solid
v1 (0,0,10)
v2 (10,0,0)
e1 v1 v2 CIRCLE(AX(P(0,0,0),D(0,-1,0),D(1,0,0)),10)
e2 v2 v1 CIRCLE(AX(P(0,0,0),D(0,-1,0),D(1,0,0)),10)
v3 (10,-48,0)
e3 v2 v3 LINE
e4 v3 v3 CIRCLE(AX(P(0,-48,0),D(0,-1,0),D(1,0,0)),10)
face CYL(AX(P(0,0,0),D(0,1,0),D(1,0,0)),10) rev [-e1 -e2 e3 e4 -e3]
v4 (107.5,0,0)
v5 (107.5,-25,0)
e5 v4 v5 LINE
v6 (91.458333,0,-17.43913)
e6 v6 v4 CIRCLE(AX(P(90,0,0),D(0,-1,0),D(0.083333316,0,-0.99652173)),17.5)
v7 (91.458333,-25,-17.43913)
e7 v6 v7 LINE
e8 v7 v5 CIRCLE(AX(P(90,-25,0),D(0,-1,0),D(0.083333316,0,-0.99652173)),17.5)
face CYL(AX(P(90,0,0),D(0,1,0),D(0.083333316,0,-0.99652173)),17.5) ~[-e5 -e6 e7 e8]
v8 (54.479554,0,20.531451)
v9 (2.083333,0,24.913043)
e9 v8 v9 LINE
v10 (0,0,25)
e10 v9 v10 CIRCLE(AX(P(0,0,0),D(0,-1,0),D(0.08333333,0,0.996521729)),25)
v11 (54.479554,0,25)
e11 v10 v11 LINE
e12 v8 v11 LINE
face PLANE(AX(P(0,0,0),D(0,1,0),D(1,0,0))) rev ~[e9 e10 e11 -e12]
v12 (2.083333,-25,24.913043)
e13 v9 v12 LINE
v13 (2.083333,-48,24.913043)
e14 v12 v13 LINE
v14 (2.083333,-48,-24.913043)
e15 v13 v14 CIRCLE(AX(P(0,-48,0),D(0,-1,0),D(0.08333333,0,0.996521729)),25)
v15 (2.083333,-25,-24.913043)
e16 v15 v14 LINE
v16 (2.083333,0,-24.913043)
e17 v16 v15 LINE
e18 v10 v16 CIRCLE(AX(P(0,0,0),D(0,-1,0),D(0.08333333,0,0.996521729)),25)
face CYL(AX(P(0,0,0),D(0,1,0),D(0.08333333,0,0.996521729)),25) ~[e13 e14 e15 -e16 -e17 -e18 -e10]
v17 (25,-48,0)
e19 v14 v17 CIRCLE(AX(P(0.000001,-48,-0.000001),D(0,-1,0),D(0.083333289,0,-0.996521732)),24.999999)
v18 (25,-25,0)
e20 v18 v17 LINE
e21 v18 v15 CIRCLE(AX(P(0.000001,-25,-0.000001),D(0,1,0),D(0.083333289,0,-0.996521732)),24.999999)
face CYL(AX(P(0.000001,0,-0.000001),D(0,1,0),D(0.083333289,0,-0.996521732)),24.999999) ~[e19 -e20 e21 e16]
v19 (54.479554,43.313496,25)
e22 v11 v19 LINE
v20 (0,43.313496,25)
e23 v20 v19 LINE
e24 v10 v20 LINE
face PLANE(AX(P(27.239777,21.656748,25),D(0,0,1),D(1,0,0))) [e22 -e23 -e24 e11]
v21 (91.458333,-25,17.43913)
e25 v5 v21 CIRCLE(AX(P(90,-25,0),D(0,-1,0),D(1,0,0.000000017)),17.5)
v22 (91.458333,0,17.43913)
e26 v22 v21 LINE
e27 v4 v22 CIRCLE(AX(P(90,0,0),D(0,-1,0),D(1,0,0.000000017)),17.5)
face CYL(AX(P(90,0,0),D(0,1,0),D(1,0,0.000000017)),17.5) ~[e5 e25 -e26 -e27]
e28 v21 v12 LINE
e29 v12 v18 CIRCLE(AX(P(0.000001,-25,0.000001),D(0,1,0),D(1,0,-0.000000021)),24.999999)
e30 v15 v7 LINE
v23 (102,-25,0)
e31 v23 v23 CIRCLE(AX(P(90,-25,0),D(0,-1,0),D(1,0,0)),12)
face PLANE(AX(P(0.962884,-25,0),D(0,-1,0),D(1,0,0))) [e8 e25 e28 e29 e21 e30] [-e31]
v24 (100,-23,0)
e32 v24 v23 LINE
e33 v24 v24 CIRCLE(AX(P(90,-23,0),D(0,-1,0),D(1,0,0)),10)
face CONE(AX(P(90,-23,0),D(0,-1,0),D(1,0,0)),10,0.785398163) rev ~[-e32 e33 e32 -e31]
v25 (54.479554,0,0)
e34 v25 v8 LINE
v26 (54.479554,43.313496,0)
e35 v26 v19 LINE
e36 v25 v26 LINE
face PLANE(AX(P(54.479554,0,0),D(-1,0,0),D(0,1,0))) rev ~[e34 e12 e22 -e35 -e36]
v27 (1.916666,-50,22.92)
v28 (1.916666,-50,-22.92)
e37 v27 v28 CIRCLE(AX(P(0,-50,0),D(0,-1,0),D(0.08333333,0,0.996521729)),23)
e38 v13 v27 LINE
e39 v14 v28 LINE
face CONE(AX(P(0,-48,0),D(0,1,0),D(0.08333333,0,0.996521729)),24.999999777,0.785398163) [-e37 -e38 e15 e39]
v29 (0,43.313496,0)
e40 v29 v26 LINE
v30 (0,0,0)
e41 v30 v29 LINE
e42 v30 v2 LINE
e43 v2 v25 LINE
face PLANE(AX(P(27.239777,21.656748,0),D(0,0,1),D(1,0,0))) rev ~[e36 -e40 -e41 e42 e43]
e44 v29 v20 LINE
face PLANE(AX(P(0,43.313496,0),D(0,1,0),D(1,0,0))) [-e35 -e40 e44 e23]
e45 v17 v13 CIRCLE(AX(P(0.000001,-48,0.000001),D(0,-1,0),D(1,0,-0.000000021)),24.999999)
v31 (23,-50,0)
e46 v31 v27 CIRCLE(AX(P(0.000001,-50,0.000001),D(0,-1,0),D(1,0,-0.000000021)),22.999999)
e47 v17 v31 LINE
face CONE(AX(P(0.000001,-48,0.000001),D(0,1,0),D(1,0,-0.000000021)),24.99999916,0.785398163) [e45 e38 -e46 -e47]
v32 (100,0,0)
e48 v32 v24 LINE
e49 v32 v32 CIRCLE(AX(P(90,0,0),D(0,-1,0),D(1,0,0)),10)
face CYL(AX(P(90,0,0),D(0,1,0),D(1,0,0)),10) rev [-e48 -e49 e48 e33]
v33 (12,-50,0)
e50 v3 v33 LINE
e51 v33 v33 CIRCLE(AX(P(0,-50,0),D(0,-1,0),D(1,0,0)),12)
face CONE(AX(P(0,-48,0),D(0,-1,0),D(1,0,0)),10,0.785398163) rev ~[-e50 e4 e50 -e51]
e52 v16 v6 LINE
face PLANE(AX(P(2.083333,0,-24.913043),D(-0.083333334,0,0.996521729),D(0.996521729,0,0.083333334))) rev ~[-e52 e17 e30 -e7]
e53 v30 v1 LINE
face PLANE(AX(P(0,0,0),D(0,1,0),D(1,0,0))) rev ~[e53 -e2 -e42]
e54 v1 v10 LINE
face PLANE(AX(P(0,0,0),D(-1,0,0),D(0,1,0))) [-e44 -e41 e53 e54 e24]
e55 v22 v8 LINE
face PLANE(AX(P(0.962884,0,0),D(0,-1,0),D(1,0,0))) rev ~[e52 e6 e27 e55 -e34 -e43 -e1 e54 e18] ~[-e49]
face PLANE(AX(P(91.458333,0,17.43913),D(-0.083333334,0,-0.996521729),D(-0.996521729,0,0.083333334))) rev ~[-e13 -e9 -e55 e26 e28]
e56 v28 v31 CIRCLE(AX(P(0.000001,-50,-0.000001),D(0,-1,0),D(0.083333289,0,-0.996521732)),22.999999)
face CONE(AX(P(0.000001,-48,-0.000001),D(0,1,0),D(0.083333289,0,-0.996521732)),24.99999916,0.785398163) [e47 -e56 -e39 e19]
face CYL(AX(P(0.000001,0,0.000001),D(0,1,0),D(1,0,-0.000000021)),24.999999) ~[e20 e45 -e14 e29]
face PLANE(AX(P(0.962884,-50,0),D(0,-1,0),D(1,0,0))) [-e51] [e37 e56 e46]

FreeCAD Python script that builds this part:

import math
import FreeCAD as App
import Part
import Sketcher

V = App.Vector
Q = App.Units.Quantity


def edges_at(feature, points):
    """Names of the edges that pass closest to the given points."""
    edges = feature.Shape.Edges
    near = lambda p: min(range(len(edges)), key=lambda i: edges[i].distToShape(Part.Vertex(*p))[0])
    return sorted({f"Edge{near(p) + 1}" for p in points})

doc = App.newDocument("Part")
body = doc.addObject("PartDesign::Body", "Body")

sketch1 = body.newObject("Sketcher::SketchObject", "Sketch")
sketch1.AttachmentSupport = (doc.getObject("XZ_Plane"), [""])
sketch1.MapMode = "FlatFace"
sketch1.addGeometry([
    Part.ArcOfCircle(Part.Circle(V(0, 0, 0), V(0, 0, 1), 25), math.radians(85), math.radians(275)),
    Part.LineSegment(V(2, -25, 0), V(91, -17, 0)),
    Part.ArcOfCircle(Part.Circle(V(90, 0, 0), V(0, 0, 1), 18), math.radians(-85), math.radians(0)),
    Part.ArcOfCircle(Part.Circle(V(90, 0, 0), V(0, 0, 1), 18), math.radians(0), math.radians(85)),
    Part.LineSegment(V(91, 17, 0), V(2, 25, 0)),
    Part.Circle(V(0, 0, 0), V(0, 0, 1), 10),
    Part.Circle(V(90, 0, 0), V(0, 0, 1), 10),
], False)
sketch1.addConstraint([
    Sketcher.Constraint("Tangent", 0, 2, 1, 1),
    Sketcher.Constraint("Tangent", 1, 2, 2, 1),
    Sketcher.Constraint("Tangent", 2, 2, 3, 1),
    Sketcher.Constraint("Tangent", 3, 2, 4, 1),
    Sketcher.Constraint("Tangent", 4, 2, 0, 1),
    Sketcher.Constraint("Coincident", 0, 3, -1, 1),
    Sketcher.Constraint("Coincident", 5, 3, -1, 1),
    Sketcher.Constraint("Coincident", 6, 3, 2, 3),
    Sketcher.Constraint("Equal", 2, 3),
    Sketcher.Constraint("Equal", 5, 6),
    Sketcher.Constraint("PointOnObject", 2, 3, -1),
    Sketcher.Constraint("PointOnObject", 2, 2, -1),
    Sketcher.Constraint("Diameter", 5, Q("20 mm")),
    Sketcher.Constraint("Radius", 0, Q("25 mm")),
    Sketcher.Constraint("Radius", 2, Q("17.5 mm")),
    Sketcher.Constraint("DistanceX", -1, 1, 2, 3, Q("90 mm")),
])
pad1 = body.newObject("PartDesign::Pad", "Pad")
pad1.Profile = sketch1
pad1.Length = 25

sketch2 = body.newObject("Sketcher::SketchObject", "Sketch001")
sketch2.AttachmentSupport = (doc.getObject("XZ_Plane"), [""])
sketch2.MapMode = "FlatFace"
sketch2.addGeometry([
    Part.ArcOfCircle(Part.Circle(V(0, 0, 0), V(0, 0, 1), 25), math.radians(-85), math.radians(0)),
    Part.ArcOfCircle(Part.Circle(V(0, 0, 0), V(0, 0, 1), 25), math.radians(0), math.radians(85)),
    Part.ArcOfCircle(Part.Circle(V(0, 0, 0), V(0, 0, 1), 25), math.radians(85), math.radians(275)),
    Part.Circle(V(0, 0, 0), V(0, 0, 1), 10),
], False)
sketch2.addConstraint([
    Sketcher.Constraint("Tangent", 0, 2, 1, 1),
    Sketcher.Constraint("Tangent", 1, 2, 2, 1),
    Sketcher.Constraint("Tangent", 2, 2, 0, 1),
    Sketcher.Constraint("Coincident", 0, 3, -1, 1),
    Sketcher.Constraint("Coincident", 3, 3, -1, 1),
    Sketcher.Constraint("PointOnObject", 0, 2, -1),
    Sketcher.Constraint("Vertical", 1, 2, 2, 2),
    Sketcher.Constraint("Diameter", 3, Q("20 mm")),
    Sketcher.Constraint("Radius", 0, Q("24.999999 mm")),
    Sketcher.Constraint("DistanceX", -1, 1, 1, 2, Q("2.083333 mm")),
])
pad2 = body.newObject("PartDesign::Pad", "Pad001")
pad2.Profile = sketch2
pad2.Length = 50
doc.recompute()

chamfer = body.newObject("PartDesign::Chamfer", "Chamfer")
chamfer.Base = (pad2, edges_at(pad2, [(-25, -50, 0), (-10, -50, 0), (80, -25, 0)]))
chamfer.Size = 2

sketch3 = body.newObject("Sketcher::SketchObject", "Sketch002")
sketch3.AttachmentSupport = (doc.getObject("XY_Plane"), [""])
sketch3.MapMode = "FlatFace"
sketch3.addGeometry([
    Part.LineSegment(V(0, 43, 0), V(0, 0, 0)),
    Part.LineSegment(V(0, 0, 0), V(54, 0, 0)),
    Part.LineSegment(V(54, 0, 0), V(54, 43, 0)),
    Part.LineSegment(V(54, 43, 0), V(0, 43, 0)),
], False)
sketch3.addConstraint([
    Sketcher.Constraint("Coincident", 0, 2, 1, 1),
    Sketcher.Constraint("Coincident", 1, 2, 2, 1),
    Sketcher.Constraint("Coincident", 2, 2, 3, 1),
    Sketcher.Constraint("Coincident", 3, 2, 0, 1),
    Sketcher.Constraint("Vertical", 0),
    Sketcher.Constraint("Horizontal", 1),
    Sketcher.Constraint("Vertical", 2),
    Sketcher.Constraint("Horizontal", 3),
    Sketcher.Constraint("Coincident", 0, 2, -1, 1),
    Sketcher.Constraint("DistanceX", 1, 1, 1, 2, Q("54.479554 mm")),
    Sketcher.Constraint("DistanceY", 0, 2, 0, 1, Q("43.313496 mm")),
])
pad3 = body.newObject("PartDesign::Pad", "Pad002")
pad3.Profile = sketch3
pad3.Length = 25

doc.recompute()
